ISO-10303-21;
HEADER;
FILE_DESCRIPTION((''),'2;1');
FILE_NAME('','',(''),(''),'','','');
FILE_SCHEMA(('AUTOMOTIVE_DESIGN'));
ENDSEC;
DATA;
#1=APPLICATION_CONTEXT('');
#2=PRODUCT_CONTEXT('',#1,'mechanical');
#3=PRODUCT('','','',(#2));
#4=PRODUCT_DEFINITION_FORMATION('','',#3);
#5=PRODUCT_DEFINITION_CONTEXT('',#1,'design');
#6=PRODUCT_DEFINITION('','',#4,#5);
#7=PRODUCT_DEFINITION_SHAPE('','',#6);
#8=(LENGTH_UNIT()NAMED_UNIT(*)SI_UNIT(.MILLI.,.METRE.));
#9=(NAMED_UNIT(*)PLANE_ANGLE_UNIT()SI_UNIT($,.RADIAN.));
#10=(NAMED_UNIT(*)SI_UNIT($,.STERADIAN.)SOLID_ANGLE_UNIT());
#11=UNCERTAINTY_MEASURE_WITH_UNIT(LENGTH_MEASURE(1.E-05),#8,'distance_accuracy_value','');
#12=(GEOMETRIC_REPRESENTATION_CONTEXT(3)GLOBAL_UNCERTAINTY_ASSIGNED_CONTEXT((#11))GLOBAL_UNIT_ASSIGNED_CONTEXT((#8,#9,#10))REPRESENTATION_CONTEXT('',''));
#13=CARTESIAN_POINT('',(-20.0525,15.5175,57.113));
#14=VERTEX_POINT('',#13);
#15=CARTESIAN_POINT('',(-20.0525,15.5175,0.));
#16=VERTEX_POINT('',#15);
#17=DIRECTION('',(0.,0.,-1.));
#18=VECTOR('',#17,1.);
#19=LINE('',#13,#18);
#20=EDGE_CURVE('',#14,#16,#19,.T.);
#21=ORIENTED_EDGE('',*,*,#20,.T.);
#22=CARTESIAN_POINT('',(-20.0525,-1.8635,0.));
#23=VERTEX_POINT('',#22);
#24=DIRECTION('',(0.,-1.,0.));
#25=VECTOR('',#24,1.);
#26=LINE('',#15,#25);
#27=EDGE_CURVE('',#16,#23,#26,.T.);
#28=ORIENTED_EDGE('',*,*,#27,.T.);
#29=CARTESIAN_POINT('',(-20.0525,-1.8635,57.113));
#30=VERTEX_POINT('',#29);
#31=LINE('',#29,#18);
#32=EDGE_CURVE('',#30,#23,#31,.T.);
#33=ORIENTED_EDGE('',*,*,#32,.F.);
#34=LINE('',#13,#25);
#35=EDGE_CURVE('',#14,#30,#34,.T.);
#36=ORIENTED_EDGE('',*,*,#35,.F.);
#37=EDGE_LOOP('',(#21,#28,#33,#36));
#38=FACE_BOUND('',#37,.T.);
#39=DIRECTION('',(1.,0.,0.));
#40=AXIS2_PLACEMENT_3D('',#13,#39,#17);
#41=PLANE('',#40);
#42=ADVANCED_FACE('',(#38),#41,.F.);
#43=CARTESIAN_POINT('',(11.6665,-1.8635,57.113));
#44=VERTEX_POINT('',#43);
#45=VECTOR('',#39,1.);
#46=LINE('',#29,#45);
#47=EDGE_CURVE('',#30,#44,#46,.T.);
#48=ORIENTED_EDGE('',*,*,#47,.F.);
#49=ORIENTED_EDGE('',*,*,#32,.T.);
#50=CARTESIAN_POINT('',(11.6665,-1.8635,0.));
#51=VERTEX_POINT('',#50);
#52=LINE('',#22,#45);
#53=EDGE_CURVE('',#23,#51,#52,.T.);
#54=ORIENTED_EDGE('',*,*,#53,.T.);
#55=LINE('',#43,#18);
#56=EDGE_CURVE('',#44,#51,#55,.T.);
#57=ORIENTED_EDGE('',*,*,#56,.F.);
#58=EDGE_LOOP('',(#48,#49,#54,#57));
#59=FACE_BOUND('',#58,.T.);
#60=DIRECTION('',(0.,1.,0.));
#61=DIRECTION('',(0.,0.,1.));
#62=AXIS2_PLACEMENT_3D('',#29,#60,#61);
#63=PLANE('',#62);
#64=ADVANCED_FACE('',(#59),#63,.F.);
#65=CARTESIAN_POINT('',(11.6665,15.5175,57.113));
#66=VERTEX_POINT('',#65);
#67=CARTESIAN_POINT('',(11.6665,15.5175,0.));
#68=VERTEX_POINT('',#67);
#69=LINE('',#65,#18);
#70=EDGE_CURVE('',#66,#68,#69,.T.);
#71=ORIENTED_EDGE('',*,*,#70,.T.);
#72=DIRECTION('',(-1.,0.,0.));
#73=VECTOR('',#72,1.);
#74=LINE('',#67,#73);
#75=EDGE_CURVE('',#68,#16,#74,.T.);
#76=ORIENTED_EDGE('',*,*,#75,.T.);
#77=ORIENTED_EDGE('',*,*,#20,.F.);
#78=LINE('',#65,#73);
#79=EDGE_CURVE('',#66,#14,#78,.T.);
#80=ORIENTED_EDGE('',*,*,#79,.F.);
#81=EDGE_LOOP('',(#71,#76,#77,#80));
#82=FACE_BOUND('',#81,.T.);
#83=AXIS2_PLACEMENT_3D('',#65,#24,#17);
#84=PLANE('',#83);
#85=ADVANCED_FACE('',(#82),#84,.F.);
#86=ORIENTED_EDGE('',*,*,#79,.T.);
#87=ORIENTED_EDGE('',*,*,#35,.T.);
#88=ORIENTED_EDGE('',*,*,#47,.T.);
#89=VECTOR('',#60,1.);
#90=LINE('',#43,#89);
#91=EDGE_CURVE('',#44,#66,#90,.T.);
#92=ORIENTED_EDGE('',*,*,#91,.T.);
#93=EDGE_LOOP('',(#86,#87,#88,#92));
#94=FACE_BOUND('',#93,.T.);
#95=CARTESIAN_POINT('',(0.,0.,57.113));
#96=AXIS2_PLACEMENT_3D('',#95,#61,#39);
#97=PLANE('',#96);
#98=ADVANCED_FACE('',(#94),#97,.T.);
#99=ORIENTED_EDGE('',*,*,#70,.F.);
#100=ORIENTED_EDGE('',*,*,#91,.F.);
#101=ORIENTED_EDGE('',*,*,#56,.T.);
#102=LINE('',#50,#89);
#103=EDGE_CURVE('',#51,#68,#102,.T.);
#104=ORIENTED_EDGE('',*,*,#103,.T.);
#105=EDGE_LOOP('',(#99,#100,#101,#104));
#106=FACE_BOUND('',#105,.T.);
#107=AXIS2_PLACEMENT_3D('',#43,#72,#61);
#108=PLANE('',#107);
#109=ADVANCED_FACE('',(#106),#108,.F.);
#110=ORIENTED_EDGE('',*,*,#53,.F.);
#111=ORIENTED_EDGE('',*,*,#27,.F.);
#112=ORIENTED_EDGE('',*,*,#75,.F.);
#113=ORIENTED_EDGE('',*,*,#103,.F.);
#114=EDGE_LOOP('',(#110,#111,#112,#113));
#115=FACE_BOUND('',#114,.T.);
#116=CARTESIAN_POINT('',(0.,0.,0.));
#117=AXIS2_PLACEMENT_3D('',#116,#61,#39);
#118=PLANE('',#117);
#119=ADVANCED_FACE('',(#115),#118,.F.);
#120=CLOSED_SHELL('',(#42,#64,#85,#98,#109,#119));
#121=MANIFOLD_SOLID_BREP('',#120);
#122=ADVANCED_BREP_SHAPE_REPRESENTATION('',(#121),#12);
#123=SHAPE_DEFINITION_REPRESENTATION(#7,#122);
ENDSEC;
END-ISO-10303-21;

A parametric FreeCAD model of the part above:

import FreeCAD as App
import Part
import Sketcher

V = App.Vector
Q = App.Units.Quantity

doc = App.newDocument("Part")
body = doc.addObject("PartDesign::Body", "Body")

# Sketch on XY plane
sketch1 = body.newObject("Sketcher::SketchObject", "Sketch")
sketch1.AttachmentSupport = (doc.getObject("XY_Plane"), [""])
sketch1.MapMode = "FlatFace"
sketch1.addGeometry([
    Part.LineSegment(V(-20, 16, 0), V(-20, -2, 0)),
    Part.LineSegment(V(-20, -2, 0), V(12, -2, 0)),
    Part.LineSegment(V(12, -2, 0), V(12, 16, 0)),
    Part.LineSegment(V(12, 16, 0), V(-20, 16, 0)),
], False)
sketch1.addConstraint([
    Sketcher.Constraint("Coincident", 0, 2, 1, 1),
    Sketcher.Constraint("Coincident", 1, 2, 2, 1),
    Sketcher.Constraint("Coincident", 2, 2, 3, 1),
    Sketcher.Constraint("Coincident", 3, 2, 0, 1),
    Sketcher.Constraint("Vertical", 0),
    Sketcher.Constraint("Horizontal", 1),
    Sketcher.Constraint("Vertical", 2),
    Sketcher.Constraint("Horizontal", 3),
    Sketcher.Constraint("DistanceX", 1, 1, 1, 2, Q("31.719 mm")),
    Sketcher.Constraint("DistanceY", 0, 2, 0, 1, Q("17.381 mm")),
    Sketcher.Constraint("DistanceX", 0, 2, -1, 1, Q("20.0525 mm")),
    Sketcher.Constraint("DistanceY", 0, 2, -1, 1, Q("1.8635 mm")),
])
pad1 = body.newObject("PartDesign::Pad", "Pad")
pad1.Profile = sketch1
pad1.Length = 57.113

doc.recompute()
